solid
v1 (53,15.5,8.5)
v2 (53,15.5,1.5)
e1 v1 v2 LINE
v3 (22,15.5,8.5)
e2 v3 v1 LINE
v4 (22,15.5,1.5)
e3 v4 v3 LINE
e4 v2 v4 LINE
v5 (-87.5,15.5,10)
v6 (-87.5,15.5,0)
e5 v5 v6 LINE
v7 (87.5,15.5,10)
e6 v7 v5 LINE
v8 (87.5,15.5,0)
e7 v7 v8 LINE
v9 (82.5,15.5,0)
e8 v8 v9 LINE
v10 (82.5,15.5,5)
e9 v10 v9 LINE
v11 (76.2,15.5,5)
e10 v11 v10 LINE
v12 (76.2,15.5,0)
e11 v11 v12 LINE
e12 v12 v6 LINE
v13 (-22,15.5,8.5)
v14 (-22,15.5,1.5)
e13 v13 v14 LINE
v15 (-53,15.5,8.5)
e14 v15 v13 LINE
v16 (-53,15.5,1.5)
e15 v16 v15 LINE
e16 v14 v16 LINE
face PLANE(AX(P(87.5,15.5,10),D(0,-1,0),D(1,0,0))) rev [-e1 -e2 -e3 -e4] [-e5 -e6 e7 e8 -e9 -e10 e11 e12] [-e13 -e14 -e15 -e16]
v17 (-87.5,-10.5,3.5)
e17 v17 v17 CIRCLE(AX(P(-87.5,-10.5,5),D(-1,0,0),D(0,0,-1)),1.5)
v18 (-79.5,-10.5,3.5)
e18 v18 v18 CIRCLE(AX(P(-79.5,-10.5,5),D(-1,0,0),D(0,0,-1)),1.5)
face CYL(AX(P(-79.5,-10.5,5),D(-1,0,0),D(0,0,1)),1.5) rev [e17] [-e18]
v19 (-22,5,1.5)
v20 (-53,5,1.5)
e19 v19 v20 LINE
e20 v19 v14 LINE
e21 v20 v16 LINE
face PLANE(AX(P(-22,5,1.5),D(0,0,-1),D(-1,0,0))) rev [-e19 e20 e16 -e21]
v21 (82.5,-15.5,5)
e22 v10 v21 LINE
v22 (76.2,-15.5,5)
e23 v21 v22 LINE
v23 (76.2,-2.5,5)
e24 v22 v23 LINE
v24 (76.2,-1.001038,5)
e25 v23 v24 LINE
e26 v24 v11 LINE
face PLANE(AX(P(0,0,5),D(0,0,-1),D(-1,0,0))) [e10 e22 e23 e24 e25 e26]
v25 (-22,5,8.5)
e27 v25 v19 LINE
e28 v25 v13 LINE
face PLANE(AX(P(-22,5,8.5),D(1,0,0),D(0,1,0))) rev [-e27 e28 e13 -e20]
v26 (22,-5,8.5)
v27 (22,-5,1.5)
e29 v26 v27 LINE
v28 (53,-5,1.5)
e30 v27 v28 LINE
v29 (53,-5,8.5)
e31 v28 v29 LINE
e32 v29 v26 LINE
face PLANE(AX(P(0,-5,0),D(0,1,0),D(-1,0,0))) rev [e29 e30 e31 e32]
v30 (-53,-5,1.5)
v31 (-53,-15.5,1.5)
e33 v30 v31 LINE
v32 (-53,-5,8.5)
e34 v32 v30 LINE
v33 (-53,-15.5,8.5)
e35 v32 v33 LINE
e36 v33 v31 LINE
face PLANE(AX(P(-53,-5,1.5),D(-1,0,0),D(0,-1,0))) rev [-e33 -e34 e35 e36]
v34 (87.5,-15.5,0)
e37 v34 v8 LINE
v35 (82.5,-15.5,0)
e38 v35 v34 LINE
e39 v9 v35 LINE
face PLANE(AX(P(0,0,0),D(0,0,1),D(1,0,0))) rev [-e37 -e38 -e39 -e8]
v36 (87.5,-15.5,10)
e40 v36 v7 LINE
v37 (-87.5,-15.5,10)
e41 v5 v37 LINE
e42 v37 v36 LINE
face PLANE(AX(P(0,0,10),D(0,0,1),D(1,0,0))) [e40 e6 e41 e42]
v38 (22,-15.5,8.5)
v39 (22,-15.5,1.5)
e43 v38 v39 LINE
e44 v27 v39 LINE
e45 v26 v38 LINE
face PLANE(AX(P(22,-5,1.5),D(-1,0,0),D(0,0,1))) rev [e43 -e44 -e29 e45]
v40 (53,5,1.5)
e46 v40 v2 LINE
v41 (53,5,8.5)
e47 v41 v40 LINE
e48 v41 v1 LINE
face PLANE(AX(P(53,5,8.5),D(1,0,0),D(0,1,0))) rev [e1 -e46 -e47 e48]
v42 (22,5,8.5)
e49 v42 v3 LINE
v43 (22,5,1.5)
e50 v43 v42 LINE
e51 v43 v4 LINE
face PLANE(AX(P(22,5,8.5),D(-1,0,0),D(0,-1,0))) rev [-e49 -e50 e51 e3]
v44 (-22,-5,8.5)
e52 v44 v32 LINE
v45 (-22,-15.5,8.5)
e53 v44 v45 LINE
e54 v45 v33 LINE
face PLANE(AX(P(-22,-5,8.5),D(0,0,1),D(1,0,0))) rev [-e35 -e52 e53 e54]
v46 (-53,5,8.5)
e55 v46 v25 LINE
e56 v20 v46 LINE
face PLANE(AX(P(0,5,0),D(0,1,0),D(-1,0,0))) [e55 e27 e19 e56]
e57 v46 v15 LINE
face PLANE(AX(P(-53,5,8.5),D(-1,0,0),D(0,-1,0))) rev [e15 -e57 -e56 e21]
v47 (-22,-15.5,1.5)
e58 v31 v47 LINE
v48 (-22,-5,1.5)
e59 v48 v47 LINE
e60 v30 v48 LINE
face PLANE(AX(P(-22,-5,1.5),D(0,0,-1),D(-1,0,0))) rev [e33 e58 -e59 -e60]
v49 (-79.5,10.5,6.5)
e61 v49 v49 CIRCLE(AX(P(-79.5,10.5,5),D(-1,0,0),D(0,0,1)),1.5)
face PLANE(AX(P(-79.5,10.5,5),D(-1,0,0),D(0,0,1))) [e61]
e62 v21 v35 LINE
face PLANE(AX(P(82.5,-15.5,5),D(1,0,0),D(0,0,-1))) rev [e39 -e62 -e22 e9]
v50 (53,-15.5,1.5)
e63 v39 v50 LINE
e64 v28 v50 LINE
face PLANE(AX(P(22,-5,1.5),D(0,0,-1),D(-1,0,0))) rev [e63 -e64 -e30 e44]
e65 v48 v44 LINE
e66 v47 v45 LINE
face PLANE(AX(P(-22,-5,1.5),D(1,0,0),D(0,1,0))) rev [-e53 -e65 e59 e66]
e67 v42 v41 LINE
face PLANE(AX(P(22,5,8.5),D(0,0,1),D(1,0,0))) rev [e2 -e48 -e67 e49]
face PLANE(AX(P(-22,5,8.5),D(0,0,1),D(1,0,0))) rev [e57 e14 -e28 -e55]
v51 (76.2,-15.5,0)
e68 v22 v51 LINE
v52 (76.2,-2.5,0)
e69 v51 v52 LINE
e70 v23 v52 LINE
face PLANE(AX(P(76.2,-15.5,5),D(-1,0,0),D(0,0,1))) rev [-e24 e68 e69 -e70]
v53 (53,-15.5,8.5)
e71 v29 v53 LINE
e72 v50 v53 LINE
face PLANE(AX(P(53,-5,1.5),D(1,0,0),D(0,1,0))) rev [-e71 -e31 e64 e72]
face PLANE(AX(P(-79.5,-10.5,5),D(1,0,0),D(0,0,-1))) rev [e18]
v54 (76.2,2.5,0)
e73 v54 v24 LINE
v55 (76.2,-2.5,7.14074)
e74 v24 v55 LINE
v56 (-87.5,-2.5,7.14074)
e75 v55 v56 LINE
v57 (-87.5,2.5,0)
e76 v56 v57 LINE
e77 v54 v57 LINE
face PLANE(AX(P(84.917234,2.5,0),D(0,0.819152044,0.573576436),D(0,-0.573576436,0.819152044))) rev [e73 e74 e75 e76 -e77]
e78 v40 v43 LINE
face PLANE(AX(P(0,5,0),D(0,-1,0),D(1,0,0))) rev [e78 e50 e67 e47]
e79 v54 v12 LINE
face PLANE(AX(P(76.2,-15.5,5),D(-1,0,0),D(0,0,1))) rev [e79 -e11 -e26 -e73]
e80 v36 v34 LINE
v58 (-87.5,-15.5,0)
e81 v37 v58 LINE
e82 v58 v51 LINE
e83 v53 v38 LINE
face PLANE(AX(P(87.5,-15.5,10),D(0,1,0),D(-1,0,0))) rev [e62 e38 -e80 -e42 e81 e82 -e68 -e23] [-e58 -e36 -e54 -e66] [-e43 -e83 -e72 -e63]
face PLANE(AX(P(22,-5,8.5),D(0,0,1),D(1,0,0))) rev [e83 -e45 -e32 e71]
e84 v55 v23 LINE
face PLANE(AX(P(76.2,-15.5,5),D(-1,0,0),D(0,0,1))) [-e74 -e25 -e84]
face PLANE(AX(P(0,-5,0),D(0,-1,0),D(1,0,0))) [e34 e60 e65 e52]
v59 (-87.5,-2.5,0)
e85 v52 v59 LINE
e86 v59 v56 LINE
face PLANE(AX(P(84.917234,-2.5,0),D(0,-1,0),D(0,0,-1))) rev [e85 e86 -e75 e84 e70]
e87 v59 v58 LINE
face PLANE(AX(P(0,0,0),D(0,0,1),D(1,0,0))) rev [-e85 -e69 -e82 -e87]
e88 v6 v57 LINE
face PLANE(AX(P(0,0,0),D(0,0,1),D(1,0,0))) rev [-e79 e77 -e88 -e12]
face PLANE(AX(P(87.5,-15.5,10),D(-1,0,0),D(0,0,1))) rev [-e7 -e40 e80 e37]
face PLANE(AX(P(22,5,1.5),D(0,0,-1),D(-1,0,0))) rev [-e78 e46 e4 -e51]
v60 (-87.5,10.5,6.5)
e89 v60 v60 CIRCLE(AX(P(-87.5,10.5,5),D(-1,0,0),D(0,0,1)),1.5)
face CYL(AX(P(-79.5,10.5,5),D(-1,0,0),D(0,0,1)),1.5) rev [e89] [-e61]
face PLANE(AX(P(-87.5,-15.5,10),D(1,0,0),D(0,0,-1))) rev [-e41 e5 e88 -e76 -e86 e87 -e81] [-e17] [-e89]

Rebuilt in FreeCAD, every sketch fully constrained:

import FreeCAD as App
import Part
import Sketcher

V = App.Vector
Q = App.Units.Quantity

doc = App.newDocument("Part")
body = doc.addObject("PartDesign::Body", "Body")

# Sketch on XY plane
sketch1 = body.newObject("Sketcher::SketchObject", "Sketch")
sketch1.AttachmentSupport = (doc.getObject("XY_Plane"), [""])
sketch1.MapMode = "FlatFace"
sketch1.addGeometry([
    Part.LineSegment(V(-87.5, 15.5, 0), V(-87.5, -15.5, 0)),
    Part.LineSegment(V(-87.5, -15.5, 0), V(87.5, -15.5, 0)),
    Part.LineSegment(V(87.5, -15.5, 0), V(87.5, 15.5, 0)),
    Part.LineSegment(V(87.5, 15.5, 0), V(-87.5, 15.5, 0)),
], False)
sketch1.addConstraint([
    Sketcher.Constraint("Coincident", 0, 2, 1, 1),
    Sketcher.Constraint("Coincident", 1, 2, 2, 1),
    Sketcher.Constraint("Coincident", 2, 2, 3, 1),
    Sketcher.Constraint("Coincident", 3, 2, 0, 1),
    Sketcher.Constraint("Vertical", 0),
    Sketcher.Constraint("Horizontal", 1),
    Sketcher.Constraint("Vertical", 2),
    Sketcher.Constraint("Horizontal", 3),
    Sketcher.Constraint("Symmetric", 0, 2, 2, 2, -1, 1),
    Sketcher.Constraint("DistanceX", 1, 1, 1, 2, 175.0),
    Sketcher.Constraint("DistanceY", 0, 2, 0, 1, 31.0),
])
pad1 = body.newObject("PartDesign::Pad", "Pad")
pad1.Profile = sketch1
pad1.Length = 10

# Sketch on XZ plane
sketch2 = body.newObject("Sketcher::SketchObject", "Sketch001")
sketch2.AttachmentSupport = (doc.getObject("XZ_Plane"), [""])
sketch2.MapMode = "FlatFace"
sketch2.AttachmentOffset = App.Placement(V(0, 0, -15.5), App.Rotation())
sketch2.addGeometry([
    Part.LineSegment(V(-53, 1.5, 0), V(-53, 8.5, 0)),  # 0
    Part.LineSegment(V(-53, 8.5, 0), V(-22, 8.5, 0)),  # 1
    Part.LineSegment(V(-22, 8.5, 0), V(-22, 1.5, 0)),  # 2
    Part.LineSegment(V(-22, 1.5, 0), V(-53, 1.5, 0)),  # 3
    Part.LineSegment(V(22, 1.5, 0), V(22, 8.5, 0)),  # 4
    Part.LineSegment(V(22, 8.5, 0), V(53, 8.5, 0)),  # 5
    Part.LineSegment(V(53, 8.5, 0), V(53, 1.5, 0)),  # 6
    Part.LineSegment(V(53, 1.5, 0), V(22, 1.5, 0)),  # 7
], False)
sketch2.addConstraint([
    Sketcher.Constraint("Coincident", 0, 2, 1, 1),
    Sketcher.Constraint("Coincident", 1, 2, 2, 1),
    Sketcher.Constraint("Coincident", 2, 2, 3, 1),
    Sketcher.Constraint("Coincident", 3, 2, 0, 1),
    Sketcher.Constraint("Coincident", 4, 2, 5, 1),
    Sketcher.Constraint("Coincident", 5, 2, 6, 1),
    Sketcher.Constraint("Coincident", 6, 2, 7, 1),
    Sketcher.Constraint("Coincident", 7, 2, 4, 1),
    Sketcher.Constraint("Vertical", 0),
    Sketcher.Constraint("Horizontal", 1),
    Sketcher.Constraint("Vertical", 2),
    Sketcher.Constraint("Horizontal", 3),
    Sketcher.Constraint("Vertical", 4),
    Sketcher.Constraint("Horizontal", 5),
    Sketcher.Constraint("Vertical", 6),
    Sketcher.Constraint("Horizontal", 7),
    Sketcher.Constraint("Symmetric", 1, 2, 4, 2, -2),
    Sketcher.Constraint("Symmetric", 3, 2, 6, 2, -2),
    Sketcher.Constraint("DistanceX", 1, 1, 1, 2, 31.0),
    Sketcher.Constraint("DistanceY", 0, 1, 0, 2, 7.0),
    Sketcher.Constraint("DistanceX", 0, 2, -1, 1, 53.0),
    Sketcher.Constraint("DistanceY", -1, 1, 0, 2, 8.5),
])
pocket1 = body.newObject("PartDesign::Pocket", "Pocket")
pocket1.Profile = sketch2
pocket1.Length = 10.5
pocket1.Reversed = True

# Sketch on XZ plane
sketch3 = body.newObject("Sketcher::SketchObject", "Sketch002")
sketch3.AttachmentSupport = (doc.getObject("XZ_Plane"), [""])
sketch3.MapMode = "FlatFace"
sketch3.AttachmentOffset = App.Placement(V(0, 0, 15.5), App.Rotation())
sketch3.addGeometry([
    Part.LineSegment(V(-53, 8.5, 0), V(-53, 1.5, 0)),  # 0
    Part.LineSegment(V(-53, 1.5, 0), V(-22, 1.5, 0)),  # 1
    Part.LineSegment(V(-22, 1.5, 0), V(-22, 8.5, 0)),  # 2
    Part.LineSegment(V(-22, 8.5, 0), V(-53, 8.5, 0)),  # 3
    Part.LineSegment(V(22, 8.5, 0), V(22, 1.5, 0)),  # 4
    Part.LineSegment(V(22, 1.5, 0), V(53, 1.5, 0)),  # 5
    Part.LineSegment(V(53, 1.5, 0), V(53, 8.5, 0)),  # 6
    Part.LineSegment(V(53, 8.5, 0), V(22, 8.5, 0)),  # 7
], False)
sketch3.addConstraint([
    Sketcher.Constraint("Coincident", 0, 2, 1, 1),
    Sketcher.Constraint("Coincident", 1, 2, 2, 1),
    Sketcher.Constraint("Coincident", 2, 2, 3, 1),
    Sketcher.Constraint("Coincident", 3, 2, 0, 1),
    Sketcher.Constraint("Coincident", 4, 2, 5, 1),
    Sketcher.Constraint("Coincident", 5, 2, 6, 1),
    Sketcher.Constraint("Coincident", 6, 2, 7, 1),
    Sketcher.Constraint("Coincident", 7, 2, 4, 1),
    Sketcher.Constraint("Vertical", 0),
    Sketcher.Constraint("Horizontal", 1),
    Sketcher.Constraint("Vertical", 2),
    Sketcher.Constraint("Horizontal", 3),
    Sketcher.Constraint("Vertical", 4),
    Sketcher.Constraint("Horizontal", 5),
    Sketcher.Constraint("Vertical", 6),
    Sketcher.Constraint("Horizontal", 7),
    Sketcher.Constraint("Symmetric", 1, 2, 4, 2, -2),
    Sketcher.Constraint("Symmetric", 3, 2, 6, 2, -2),
    Sketcher.Constraint("DistanceX", 1, 1, 1, 2, 31.0),
    Sketcher.Constraint("DistanceY", 0, 2, 0, 1, 7.0),
    Sketcher.Constraint("DistanceX", 0, 2, -1, 1, 53.0),
    Sketcher.Constraint("DistanceY", -1, 1, 0, 2, 1.5),
])
pocket2 = body.newObject("PartDesign::Pocket", "Pocket001")
pocket2.Profile = sketch3
pocket2.Length = 10.5

# Sketch on XY plane
sketch4 = body.newObject("Sketcher::SketchObject", "Sketch003")
sketch4.AttachmentSupport = (doc.getObject("XY_Plane"), [""])
sketch4.MapMode = "FlatFace"
sketch4.addGeometry([
    Part.LineSegment(V(82.5, 15.5, 0), V(82.5, -15.5, 0)),
    Part.LineSegment(V(82.5, -15.5, 0), V(76.2, -15.5, 0)),
    Part.LineSegment(V(76.2, -15.5, 0), V(76.2, 15.5, 0)),
    Part.LineSegment(V(76.2, 15.5, 0), V(82.5, 15.5, 0)),
], False)
sketch4.addConstraint([
    Sketcher.Constraint("Coincident", 0, 2, 1, 1),
    Sketcher.Constraint("Coincident", 1, 2, 2, 1),
    Sketcher.Constraint("Coincident", 2, 2, 3, 1),
    Sketcher.Constraint("Coincident", 3, 2, 0, 1),
    Sketcher.Constraint("Vertical", 0),
    Sketcher.Constraint("Horizontal", 1),
    Sketcher.Constraint("Vertical", 2),
    Sketcher.Constraint("Horizontal", 3),
    Sketcher.Constraint("DistanceY", 0, 2, 0, 1, 31.0),
    Sketcher.Constraint("DistanceX", 1, 2, 1, 1, 6.3),
    Sketcher.Constraint("DistanceX", -1, 1, 0, 2, 82.5),
    Sketcher.Constraint("DistanceY", 0, 2, -1, 1, 15.5),
])
pocket3 = body.newObject("PartDesign::Pocket", "Pocket002")
pocket3.Profile = sketch4
pocket3.Length = 5
pocket3.Reversed = True

# Sketch on YZ plane
sketch5 = body.newObject("Sketcher::SketchObject", "Sketch004")
sketch5.AttachmentSupport = (doc.getObject("YZ_Plane"), [""])
sketch5.MapMode = "FlatFace"
sketch5.AttachmentOffset = App.Placement(V(0, 0, -87.5), App.Rotation())
sketch5.addGeometry([
    Part.Circle(V(10.5, 5, 0), V(0, 0, 1), 1.5),
    Part.Circle(V(-10.5, 5, 0), V(0, 0, 1), 1.5),
], False)
sketch5.addConstraint([
    Sketcher.Constraint("Equal", 0, 1),
    Sketcher.Constraint("Symmetric", 0, 3, 1, 3, -2),
    Sketcher.Constraint("Diameter", 0, 3.0),
    Sketcher.Constraint("DistanceY", -1, 1, 0, 3, 5.0),
    Sketcher.Constraint("DistanceX", 1, 3, 0, 3, 21.0),
])
pocket4 = body.newObject("PartDesign::Pocket", "Pocket003")
pocket4.Profile = sketch5
pocket4.Length = 8
pocket4.Reversed = True

# Sketch on YZ plane
sketch6 = body.newObject("Sketcher::SketchObject", "Sketch005")
sketch6.AttachmentSupport = (doc.getObject("YZ_Plane"), [""])
sketch6.MapMode = "FlatFace"
sketch6.AttachmentOffset = App.Placement(V(0, 0, -87.5), App.Rotation())
sketch6.addGeometry([
    Part.LineSegment(V(-2.5, 7.14074, 0), V(2.5, 0, 0)),
    Part.LineSegment(V(2.5, 0, 0), V(-2.5, 0, 0)),
    Part.LineSegment(V(-2.5, 0, 0), V(-2.5, 7.14074, 0)),
], False)
sketch6.addConstraint([
    Sketcher.Constraint("Coincident", 0, 2, 1, 1),
    Sketcher.Constraint("Coincident", 1, 2, 2, 1),
    Sketcher.Constraint("Coincident", 2, 2, 0, 1),
    Sketcher.Constraint("Horizontal", 1),
    Sketcher.Constraint("Vertical", 2),
    Sketcher.Constraint("Symmetric", 0, 2, 1, 2, -1, 1),
    Sketcher.Constraint("DistanceX", 1, 2, 1, 1, 5.0),
    Sketcher.Constraint("Angle", 0, Q("-55 deg")),
])
pocket5 = body.newObject("PartDesign::Pocket", "Pocket004")
pocket5.Profile = sketch6
pocket5.Length = 163.7
pocket5.Reversed = True

doc.recompute()
